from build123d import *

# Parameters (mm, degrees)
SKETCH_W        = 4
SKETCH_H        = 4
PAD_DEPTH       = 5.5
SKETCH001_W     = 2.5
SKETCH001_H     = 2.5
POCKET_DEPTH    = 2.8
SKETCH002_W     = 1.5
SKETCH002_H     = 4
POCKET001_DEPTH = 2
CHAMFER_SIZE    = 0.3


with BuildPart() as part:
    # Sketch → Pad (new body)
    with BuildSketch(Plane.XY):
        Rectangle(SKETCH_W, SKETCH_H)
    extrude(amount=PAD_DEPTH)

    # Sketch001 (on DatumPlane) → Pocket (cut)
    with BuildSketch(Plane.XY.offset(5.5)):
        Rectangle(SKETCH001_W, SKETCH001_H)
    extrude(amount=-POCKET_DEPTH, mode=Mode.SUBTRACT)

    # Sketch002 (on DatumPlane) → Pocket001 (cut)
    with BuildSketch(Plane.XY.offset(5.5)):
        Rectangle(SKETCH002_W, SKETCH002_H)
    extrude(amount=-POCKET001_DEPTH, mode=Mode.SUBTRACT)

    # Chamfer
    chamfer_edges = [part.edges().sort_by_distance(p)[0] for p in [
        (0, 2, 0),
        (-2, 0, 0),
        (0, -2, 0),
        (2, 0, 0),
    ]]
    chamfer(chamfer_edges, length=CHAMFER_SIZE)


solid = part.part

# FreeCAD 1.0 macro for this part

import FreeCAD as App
import Part
import Sketcher
from FreeCAD import Vector
Q = App.Units.Quantity


def edges_at(feature, points):
    """Names of the edges that pass closest to the given points."""
    edges = feature.Shape.Edges
    near = lambda p: min(range(len(edges)), key=lambda i: edges[i].distToShape(Part.Vertex(*p))[0])
    return sorted({f"Edge{near(p) + 1}" for p in points})


def add_polygon(sketch, points):
    """Adds a closed chain of lines whose ends are joined by coincident constraints."""
    first, n = sketch.GeometryCount, len(points)
    for a, b in zip(points, points[1:] + points[:1]):
        sketch.addGeometry(Part.LineSegment(App.Vector(*a, 0), App.Vector(*b, 0)), False)
    for i in range(n):
        sketch.addConstraint(Sketcher.Constraint("Coincident", first + i, 2, first + (i + 1) % n, 1))

doc = App.newDocument("Part")
body = doc.addObject("PartDesign::Body", "Body")

sketch1 = doc.addObject("Sketcher::SketchObject", "Sketch")
body.addObject(sketch1)
sketch1.AttachmentSupport = (doc.XY_Plane, [""])
sketch1.MapMode = "FlatFace"
add_polygon(sketch1, [(-2, 2), (-2, -2), (2, -2), (2, 2)])
sketch1.addConstraint([
    Sketcher.Constraint("Vertical", 0),
    Sketcher.Constraint("Horizontal", 1),
    Sketcher.Constraint("Vertical", 2),
    Sketcher.Constraint("Horizontal", 3),
    Sketcher.Constraint("Symmetric", 0, 2, 2, 2, -1, 1),
    Sketcher.Constraint("Equal", 3, 0),
    Sketcher.Constraint("DistanceX", 1, 1, 1, 2, Q("4 mm")),
])
pad1 = doc.addObject("PartDesign::Pad", "Pad")
body.addObject(pad1)
pad1.Profile = sketch1
pad1.Length = 5.5

sketch2 = doc.addObject("Sketcher::SketchObject", "Sketch001")
body.addObject(sketch2)
sketch2.AttachmentSupport = (doc.XY_Plane, [""])
sketch2.MapMode = "FlatFace"
sketch2.AttachmentOffset = App.Placement(Vector(0, 0, 5.5), App.Rotation())
add_polygon(sketch2, [(-1.2, 1.2), (-1.2, -1.2), (1.2, -1.2), (1.2, 1.2)])
sketch2.addConstraint([
    Sketcher.Constraint("Vertical", 0),
    Sketcher.Constraint("Horizontal", 1),
    Sketcher.Constraint("Vertical", 2),
    Sketcher.Constraint("Horizontal", 3),
    Sketcher.Constraint("Symmetric", 0, 2, 2, 2, -1, 1),
    Sketcher.Constraint("Equal", 3, 0),
    Sketcher.Constraint("DistanceX", 1, 1, 1, 2, Q("2.5 mm")),
])
pocket1 = doc.addObject("PartDesign::Pocket", "Pocket")
body.addObject(pocket1)
pocket1.Profile = sketch2
pocket1.Length = 2.8

sketch3 = doc.addObject("Sketcher::SketchObject", "Sketch002")
body.addObject(sketch3)
sketch3.AttachmentSupport = (doc.XY_Plane, [""])
sketch3.MapMode = "FlatFace"
sketch3.AttachmentOffset = App.Placement(Vector(0, 0, 5.5), App.Rotation())
add_polygon(sketch3, [(-0.8, 2), (-0.8, -2), (0.8, -2), (0.8, 2)])
sketch3.addConstraint([
    Sketcher.Constraint("Vertical", 0),
    Sketcher.Constraint("Horizontal", 1),
    Sketcher.Constraint("Vertical", 2),
    Sketcher.Constraint("Horizontal", 3),
    Sketcher.Constraint("Symmetric", 0, 2, 2, 2, -1, 1),
    Sketcher.Constraint("DistanceY", 0, 2, 0, 1, Q("4 mm")),
    Sketcher.Constraint("DistanceX", 1, 1, 1, 2, Q("1.5 mm")),
])
pocket2 = doc.addObject("PartDesign::Pocket", "Pocket001")
body.addObject(pocket2)
pocket2.Profile = sketch3
pocket2.Length = 2
doc.recompute()

chamfer = doc.addObject("PartDesign::Chamfer", "Chamfer")
body.addObject(chamfer)
chamfer.Base = (pocket2, edges_at(pocket2, [
    (0, 2, 0),
    (-2, 0, 0),
    (0, -2, 0),
    (2, 0, 0),
]))
chamfer.Size = 0.3

doc.recompute()
